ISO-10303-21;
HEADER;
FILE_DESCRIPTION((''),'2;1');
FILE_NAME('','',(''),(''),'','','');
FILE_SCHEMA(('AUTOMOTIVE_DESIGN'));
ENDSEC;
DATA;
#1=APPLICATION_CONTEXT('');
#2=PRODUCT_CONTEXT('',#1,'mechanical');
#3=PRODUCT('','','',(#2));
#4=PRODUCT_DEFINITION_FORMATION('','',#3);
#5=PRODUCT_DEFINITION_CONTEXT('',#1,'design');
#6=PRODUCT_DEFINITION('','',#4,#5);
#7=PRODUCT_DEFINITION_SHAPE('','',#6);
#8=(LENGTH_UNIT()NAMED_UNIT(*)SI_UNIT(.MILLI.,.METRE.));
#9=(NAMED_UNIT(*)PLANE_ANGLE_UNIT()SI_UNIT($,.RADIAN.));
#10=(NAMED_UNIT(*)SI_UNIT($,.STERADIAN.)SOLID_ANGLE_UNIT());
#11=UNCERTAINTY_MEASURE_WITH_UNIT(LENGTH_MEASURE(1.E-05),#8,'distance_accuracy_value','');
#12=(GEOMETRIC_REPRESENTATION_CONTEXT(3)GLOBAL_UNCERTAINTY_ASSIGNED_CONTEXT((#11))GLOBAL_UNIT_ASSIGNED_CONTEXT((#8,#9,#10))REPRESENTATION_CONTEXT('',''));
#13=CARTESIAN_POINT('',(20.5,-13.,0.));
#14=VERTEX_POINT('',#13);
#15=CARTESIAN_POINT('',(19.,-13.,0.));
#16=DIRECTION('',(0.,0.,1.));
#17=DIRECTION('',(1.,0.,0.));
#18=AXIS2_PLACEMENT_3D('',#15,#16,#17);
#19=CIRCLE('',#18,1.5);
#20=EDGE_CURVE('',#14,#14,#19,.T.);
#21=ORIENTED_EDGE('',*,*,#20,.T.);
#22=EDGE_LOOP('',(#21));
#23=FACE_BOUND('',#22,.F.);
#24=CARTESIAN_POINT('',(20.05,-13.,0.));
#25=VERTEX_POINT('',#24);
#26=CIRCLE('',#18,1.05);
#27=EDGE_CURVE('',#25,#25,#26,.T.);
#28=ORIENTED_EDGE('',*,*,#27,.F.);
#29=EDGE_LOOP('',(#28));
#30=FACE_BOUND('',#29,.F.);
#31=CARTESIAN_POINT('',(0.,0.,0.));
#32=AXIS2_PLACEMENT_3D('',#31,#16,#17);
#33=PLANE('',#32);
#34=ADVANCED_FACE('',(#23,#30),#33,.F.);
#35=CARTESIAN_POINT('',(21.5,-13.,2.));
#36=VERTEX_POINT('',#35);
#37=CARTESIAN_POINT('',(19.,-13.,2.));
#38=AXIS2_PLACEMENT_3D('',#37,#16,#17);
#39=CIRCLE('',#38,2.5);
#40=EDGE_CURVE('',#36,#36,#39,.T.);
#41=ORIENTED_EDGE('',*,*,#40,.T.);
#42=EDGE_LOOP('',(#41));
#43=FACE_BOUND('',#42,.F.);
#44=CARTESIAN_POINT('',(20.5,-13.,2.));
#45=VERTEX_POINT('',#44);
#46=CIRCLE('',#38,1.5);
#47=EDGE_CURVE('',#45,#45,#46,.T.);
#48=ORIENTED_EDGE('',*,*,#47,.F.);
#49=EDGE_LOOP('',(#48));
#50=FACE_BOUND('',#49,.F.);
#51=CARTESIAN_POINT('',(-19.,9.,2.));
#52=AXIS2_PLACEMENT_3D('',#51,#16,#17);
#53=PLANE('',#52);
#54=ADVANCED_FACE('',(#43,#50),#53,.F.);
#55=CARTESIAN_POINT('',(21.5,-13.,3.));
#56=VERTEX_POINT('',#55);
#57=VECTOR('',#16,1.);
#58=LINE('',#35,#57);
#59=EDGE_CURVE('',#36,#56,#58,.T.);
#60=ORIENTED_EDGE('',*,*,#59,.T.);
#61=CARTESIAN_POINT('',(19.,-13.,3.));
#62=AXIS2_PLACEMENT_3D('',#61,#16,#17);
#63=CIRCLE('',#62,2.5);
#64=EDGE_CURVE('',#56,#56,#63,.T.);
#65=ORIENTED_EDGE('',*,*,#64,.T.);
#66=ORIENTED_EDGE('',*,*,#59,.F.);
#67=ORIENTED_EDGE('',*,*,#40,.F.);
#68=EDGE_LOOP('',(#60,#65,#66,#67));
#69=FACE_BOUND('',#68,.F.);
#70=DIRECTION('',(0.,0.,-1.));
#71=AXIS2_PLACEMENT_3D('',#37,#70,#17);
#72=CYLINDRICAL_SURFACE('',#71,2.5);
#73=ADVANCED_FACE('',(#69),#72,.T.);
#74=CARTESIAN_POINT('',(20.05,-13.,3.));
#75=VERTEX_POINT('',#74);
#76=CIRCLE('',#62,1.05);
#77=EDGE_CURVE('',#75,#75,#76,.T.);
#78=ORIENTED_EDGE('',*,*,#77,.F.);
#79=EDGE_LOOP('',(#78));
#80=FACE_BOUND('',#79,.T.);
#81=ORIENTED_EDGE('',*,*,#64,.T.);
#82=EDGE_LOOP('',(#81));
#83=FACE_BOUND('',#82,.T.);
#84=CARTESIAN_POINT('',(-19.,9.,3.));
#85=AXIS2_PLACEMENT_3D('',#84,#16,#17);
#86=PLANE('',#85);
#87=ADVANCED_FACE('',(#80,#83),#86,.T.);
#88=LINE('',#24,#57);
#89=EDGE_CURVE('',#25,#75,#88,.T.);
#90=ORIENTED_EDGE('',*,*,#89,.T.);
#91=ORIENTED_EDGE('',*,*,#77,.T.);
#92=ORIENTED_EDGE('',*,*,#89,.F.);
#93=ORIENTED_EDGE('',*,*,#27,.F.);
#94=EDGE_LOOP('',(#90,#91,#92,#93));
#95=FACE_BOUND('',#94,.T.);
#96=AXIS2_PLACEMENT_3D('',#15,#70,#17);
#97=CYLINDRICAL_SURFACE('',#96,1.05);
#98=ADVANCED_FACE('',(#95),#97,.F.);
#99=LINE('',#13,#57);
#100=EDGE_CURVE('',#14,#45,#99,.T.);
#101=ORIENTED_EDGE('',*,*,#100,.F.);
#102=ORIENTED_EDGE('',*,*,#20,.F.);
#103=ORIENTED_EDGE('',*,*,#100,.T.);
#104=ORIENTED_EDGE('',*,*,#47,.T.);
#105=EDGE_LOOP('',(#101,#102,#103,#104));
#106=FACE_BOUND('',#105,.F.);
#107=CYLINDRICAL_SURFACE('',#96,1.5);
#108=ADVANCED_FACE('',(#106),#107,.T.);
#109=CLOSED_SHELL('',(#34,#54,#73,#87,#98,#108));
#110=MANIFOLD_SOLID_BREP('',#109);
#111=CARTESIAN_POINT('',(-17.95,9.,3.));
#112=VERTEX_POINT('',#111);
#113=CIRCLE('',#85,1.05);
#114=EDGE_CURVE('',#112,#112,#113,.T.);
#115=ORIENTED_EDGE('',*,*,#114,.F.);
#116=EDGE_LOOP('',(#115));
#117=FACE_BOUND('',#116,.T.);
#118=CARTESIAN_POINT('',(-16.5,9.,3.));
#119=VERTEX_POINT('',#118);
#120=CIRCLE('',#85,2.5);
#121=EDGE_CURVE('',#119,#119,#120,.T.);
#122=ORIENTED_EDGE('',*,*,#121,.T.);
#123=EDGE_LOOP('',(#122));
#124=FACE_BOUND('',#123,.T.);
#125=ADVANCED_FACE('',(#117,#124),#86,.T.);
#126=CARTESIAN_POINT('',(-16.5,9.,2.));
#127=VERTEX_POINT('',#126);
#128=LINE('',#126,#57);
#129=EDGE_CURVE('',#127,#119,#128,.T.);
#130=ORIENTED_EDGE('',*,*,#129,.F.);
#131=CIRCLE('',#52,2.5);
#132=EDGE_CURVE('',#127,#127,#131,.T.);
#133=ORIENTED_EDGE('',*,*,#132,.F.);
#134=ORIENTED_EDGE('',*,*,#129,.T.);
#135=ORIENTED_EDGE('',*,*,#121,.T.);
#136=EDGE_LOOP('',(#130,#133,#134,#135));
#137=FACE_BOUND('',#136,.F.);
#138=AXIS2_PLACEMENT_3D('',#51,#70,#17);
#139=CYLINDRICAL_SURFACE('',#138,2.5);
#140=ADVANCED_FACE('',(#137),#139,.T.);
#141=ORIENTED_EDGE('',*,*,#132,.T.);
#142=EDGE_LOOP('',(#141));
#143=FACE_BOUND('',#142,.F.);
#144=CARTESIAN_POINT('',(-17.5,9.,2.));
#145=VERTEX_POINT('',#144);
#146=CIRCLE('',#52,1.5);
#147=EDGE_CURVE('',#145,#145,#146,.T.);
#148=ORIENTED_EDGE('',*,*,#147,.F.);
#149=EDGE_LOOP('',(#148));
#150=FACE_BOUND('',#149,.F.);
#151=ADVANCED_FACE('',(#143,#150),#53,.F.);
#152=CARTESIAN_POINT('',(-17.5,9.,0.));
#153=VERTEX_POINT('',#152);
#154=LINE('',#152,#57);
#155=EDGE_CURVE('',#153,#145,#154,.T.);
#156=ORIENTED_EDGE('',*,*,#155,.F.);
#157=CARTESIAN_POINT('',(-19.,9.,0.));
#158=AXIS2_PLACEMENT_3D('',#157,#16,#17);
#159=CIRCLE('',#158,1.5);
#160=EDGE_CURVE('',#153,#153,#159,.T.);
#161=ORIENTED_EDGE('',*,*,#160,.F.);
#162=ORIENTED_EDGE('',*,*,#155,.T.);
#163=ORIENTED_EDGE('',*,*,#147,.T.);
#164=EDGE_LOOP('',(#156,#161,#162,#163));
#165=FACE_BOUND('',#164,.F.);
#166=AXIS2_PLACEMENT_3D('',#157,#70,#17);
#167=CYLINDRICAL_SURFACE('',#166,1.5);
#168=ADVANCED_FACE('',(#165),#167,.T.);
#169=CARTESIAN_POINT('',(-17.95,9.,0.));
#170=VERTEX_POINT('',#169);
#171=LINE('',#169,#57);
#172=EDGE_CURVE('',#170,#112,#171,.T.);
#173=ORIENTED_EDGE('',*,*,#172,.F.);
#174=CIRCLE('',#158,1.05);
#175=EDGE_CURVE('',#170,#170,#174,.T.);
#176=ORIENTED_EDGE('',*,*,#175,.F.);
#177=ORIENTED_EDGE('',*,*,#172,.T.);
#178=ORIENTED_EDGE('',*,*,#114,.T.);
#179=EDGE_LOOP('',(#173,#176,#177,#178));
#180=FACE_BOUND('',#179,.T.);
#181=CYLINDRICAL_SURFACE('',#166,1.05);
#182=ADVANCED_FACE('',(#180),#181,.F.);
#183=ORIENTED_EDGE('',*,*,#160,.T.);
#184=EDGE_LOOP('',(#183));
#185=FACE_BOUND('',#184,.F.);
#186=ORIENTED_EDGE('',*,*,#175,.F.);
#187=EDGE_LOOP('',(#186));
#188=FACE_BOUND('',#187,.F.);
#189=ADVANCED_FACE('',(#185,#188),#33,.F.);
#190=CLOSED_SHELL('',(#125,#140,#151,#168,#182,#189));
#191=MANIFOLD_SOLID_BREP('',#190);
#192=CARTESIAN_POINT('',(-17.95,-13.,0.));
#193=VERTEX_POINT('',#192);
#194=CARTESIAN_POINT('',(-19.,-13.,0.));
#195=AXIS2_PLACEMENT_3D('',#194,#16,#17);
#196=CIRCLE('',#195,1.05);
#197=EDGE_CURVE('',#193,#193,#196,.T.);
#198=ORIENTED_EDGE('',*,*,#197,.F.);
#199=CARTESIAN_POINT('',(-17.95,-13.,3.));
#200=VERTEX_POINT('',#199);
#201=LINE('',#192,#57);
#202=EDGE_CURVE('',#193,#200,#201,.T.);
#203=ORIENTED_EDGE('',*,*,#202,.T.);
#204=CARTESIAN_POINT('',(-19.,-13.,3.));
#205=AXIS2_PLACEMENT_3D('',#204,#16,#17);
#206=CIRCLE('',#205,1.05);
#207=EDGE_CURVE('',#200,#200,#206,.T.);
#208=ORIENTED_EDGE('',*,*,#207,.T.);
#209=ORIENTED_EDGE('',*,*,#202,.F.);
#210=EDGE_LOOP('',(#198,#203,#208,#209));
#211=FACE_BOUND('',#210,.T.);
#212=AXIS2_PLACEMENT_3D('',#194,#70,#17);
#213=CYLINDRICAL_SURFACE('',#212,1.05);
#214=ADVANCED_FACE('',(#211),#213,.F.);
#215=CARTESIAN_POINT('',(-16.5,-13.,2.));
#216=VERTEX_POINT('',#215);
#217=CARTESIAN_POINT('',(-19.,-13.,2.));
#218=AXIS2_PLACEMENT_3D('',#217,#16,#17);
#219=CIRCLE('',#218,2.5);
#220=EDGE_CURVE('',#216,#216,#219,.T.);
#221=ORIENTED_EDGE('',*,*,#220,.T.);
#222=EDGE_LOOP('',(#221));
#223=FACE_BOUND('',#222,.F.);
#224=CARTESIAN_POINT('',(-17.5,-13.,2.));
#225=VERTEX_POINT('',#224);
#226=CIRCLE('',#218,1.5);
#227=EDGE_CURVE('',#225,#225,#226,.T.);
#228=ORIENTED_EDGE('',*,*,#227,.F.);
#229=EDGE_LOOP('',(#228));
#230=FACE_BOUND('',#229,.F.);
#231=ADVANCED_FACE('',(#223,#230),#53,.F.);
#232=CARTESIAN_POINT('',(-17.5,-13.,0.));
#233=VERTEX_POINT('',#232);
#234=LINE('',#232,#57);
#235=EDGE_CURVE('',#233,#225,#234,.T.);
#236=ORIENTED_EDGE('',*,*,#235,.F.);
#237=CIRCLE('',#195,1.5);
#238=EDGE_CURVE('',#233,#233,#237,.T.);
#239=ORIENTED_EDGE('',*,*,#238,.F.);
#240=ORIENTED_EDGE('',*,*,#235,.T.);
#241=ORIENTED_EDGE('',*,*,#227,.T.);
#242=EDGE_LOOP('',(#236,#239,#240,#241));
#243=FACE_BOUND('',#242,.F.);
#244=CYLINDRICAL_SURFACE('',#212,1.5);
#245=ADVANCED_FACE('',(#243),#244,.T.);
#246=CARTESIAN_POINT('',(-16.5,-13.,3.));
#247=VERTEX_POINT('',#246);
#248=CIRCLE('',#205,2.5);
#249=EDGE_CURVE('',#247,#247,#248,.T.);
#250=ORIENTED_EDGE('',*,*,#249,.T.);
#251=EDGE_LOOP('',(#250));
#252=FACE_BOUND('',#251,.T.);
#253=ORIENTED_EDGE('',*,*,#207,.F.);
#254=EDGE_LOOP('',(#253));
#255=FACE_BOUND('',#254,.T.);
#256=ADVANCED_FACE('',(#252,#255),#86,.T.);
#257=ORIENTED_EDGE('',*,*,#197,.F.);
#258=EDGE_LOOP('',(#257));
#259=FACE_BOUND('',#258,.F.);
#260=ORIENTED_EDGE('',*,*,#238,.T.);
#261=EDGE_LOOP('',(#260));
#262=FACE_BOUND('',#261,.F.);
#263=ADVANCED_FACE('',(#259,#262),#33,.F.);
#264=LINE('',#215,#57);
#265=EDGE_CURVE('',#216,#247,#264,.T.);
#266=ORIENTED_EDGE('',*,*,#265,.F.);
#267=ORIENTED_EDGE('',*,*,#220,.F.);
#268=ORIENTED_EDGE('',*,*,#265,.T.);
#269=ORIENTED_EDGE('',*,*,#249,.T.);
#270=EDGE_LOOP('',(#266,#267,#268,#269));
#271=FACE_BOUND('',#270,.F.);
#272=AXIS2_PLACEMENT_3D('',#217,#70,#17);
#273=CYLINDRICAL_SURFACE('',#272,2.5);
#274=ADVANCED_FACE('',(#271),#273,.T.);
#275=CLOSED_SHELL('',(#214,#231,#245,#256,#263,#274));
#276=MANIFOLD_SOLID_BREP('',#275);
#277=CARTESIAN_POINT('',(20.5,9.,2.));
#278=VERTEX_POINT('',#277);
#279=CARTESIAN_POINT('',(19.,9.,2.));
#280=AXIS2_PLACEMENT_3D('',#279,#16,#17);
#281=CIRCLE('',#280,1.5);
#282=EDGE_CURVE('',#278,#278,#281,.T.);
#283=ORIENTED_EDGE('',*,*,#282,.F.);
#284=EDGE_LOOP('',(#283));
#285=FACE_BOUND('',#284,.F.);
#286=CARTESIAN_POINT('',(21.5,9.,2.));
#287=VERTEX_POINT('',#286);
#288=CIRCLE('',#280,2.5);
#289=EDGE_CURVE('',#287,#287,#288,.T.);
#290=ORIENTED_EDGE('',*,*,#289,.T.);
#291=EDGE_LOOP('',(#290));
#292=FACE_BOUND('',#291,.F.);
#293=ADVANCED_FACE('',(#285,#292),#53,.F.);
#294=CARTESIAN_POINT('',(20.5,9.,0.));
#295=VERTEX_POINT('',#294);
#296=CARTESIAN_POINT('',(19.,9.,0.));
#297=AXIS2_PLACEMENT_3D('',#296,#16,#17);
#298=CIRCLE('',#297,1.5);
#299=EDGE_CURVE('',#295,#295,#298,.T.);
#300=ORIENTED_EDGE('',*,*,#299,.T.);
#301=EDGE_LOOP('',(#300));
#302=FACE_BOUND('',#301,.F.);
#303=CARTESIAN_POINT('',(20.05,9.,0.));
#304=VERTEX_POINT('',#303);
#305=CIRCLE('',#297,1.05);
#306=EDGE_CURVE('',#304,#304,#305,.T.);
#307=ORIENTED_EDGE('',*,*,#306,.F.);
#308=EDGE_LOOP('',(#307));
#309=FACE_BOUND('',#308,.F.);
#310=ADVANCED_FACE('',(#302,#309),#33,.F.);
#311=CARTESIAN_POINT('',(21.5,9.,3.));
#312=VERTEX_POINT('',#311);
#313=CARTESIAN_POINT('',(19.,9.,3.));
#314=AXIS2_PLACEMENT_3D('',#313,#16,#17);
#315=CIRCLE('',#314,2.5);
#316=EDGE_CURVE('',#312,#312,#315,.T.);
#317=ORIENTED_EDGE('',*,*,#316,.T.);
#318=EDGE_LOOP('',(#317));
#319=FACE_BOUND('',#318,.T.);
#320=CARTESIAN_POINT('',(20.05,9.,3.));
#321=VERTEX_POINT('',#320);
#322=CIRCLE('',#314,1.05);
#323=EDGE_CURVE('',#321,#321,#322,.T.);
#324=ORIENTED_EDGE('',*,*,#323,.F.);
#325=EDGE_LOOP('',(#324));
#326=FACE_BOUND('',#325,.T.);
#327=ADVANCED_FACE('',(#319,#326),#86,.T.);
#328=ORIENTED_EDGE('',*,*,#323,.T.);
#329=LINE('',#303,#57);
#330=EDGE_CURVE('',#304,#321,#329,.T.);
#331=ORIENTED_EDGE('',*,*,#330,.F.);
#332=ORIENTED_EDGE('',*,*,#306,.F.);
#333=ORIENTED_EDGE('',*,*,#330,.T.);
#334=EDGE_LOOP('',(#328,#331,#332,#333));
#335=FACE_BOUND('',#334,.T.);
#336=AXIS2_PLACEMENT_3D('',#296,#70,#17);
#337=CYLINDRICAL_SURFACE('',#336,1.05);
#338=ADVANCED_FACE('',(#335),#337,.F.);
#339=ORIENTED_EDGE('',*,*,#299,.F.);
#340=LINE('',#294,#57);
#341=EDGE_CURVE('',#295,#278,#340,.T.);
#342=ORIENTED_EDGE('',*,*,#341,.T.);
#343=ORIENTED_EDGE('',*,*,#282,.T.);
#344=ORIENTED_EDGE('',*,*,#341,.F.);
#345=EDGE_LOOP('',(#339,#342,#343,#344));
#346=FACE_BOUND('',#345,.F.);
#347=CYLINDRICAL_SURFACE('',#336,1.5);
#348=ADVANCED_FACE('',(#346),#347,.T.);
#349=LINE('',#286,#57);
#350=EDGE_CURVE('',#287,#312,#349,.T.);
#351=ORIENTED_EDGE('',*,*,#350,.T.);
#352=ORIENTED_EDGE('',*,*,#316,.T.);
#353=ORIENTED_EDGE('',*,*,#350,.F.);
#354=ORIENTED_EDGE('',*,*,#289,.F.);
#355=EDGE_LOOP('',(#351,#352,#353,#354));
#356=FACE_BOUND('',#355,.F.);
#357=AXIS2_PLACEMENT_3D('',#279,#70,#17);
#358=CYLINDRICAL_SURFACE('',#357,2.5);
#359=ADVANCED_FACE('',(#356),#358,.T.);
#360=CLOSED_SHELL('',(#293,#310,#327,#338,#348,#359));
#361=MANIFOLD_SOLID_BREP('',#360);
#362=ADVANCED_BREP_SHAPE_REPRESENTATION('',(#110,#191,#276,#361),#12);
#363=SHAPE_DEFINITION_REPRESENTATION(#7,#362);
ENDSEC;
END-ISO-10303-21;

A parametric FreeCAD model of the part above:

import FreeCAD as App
import Part
import Sketcher
Q = App.Units.Quantity

doc = App.newDocument("Part")
body = doc.addObject("PartDesign::Body", "Body")
body.AllowCompound = True

# Sketch on XY plane
sketch1 = body.newObject("Sketcher::SketchObject", "Sketch")
sketch1.AttachmentSupport = (doc.getObject("XY_Plane"), [""])
sketch1.MapMode = "FlatFace"
sketch1.addGeometry([
    Part.Circle(App.Vector(-19, 9, 0), App.Vector(0, 0, 1), 1.5),  # 0
    Part.Circle(App.Vector(-19, 9, 0), App.Vector(0, 0, 1), 1.1),  # 1
    Part.Circle(App.Vector(-19, -13, 0), App.Vector(0, 0, 1), 1.5),  # 2
    Part.Circle(App.Vector(-19, -13, 0), App.Vector(0, 0, 1), 1.1),  # 3
    Part.Circle(App.Vector(19, -13, 0), App.Vector(0, 0, 1), 1.5),  # 4
    Part.Circle(App.Vector(19, -13, 0), App.Vector(0, 0, 1), 1.1),  # 5
    Part.Circle(App.Vector(19, 9, 0), App.Vector(0, 0, 1), 1.5),  # 6
    Part.Circle(App.Vector(19, 9, 0), App.Vector(0, 0, 1), 1.1),  # 7
], False)
sketch1.addConstraint([
    Sketcher.Constraint("Coincident", 1, 3, 0, 3),
    Sketcher.Constraint("Coincident", 3, 3, 2, 3),
    Sketcher.Constraint("Coincident", 5, 3, 4, 3),
    Sketcher.Constraint("Coincident", 7, 3, 6, 3),
    Sketcher.Constraint("Equal", 0, 2),
    Sketcher.Constraint("Equal", 1, 3),
    Sketcher.Constraint("Equal", 2, 4),
    Sketcher.Constraint("Equal", 3, 5),
    Sketcher.Constraint("Equal", 4, 6),
    Sketcher.Constraint("Equal", 5, 7),
    Sketcher.Constraint("Symmetric", 2, 3, 4, 3, -2),
    Sketcher.Constraint("Symmetric", 0, 3, 6, 3, -2),
    Sketcher.Constraint("Vertical", 1, 3, 2, 3),
    Sketcher.Constraint("Diameter", 0, Q("3 mm")),
    Sketcher.Constraint("Diameter", 1, Q("2.1 mm")),
    Sketcher.Constraint("DistanceX", 0, 3, -1, 1, Q("19 mm")),
    Sketcher.Constraint("DistanceY", -1, 1, 0, 3, Q("9 mm")),
    Sketcher.Constraint("DistanceY", 2, 3, -1, 1, Q("13 mm")),
])
pad1 = body.newObject("PartDesign::Pad", "Pad")
pad1.Profile = sketch1
pad1.Length = 2

# Sketch on XY plane
sketch2 = body.newObject("Sketcher::SketchObject", "Sketch001")
sketch2.AttachmentSupport = (doc.getObject("XY_Plane"), [""])
sketch2.MapMode = "FlatFace"
sketch2.AttachmentOffset = App.Placement(App.Vector(0, 0, 2), App.Rotation())
sketch2.addGeometry([
    Part.Circle(App.Vector(-19, 9, 0), App.Vector(0, 0, 1), 2.5),  # 0
    Part.Circle(App.Vector(-19, 9, 0), App.Vector(0, 0, 1), 1.1),  # 1
    Part.Circle(App.Vector(-19, -13, 0), App.Vector(0, 0, 1), 2.5),  # 2
    Part.Circle(App.Vector(-19, -13, 0), App.Vector(0, 0, 1), 1.1),  # 3
    Part.Circle(App.Vector(19, -13, 0), App.Vector(0, 0, 1), 2.5),  # 4
    Part.Circle(App.Vector(19, -13, 0), App.Vector(0, 0, 1), 1.1),  # 5
    Part.Circle(App.Vector(19, 9, 0), App.Vector(0, 0, 1), 2.5),  # 6
    Part.Circle(App.Vector(19, 9, 0), App.Vector(0, 0, 1), 1.1),  # 7
], False)
sketch2.addConstraint([
    Sketcher.Constraint("Coincident", 1, 3, 0, 3),
    Sketcher.Constraint("Coincident", 3, 3, 2, 3),
    Sketcher.Constraint("Coincident", 5, 3, 4, 3),
    Sketcher.Constraint("Coincident", 7, 3, 6, 3),
    Sketcher.Constraint("Equal", 0, 2),
    Sketcher.Constraint("Equal", 1, 3),
    Sketcher.Constraint("Equal", 2, 4),
    Sketcher.Constraint("Equal", 3, 5),
    Sketcher.Constraint("Equal", 4, 6),
    Sketcher.Constraint("Equal", 5, 7),
    Sketcher.Constraint("Symmetric", 2, 3, 4, 3, -2),
    Sketcher.Constraint("Symmetric", 0, 3, 6, 3, -2),
    Sketcher.Constraint("Vertical", 1, 3, 2, 3),
    Sketcher.Constraint("Diameter", 0, Q("5 mm")),
    Sketcher.Constraint("Diameter", 1, Q("2.1 mm")),
    Sketcher.Constraint("DistanceX", 0, 3, -1, 1, Q("19 mm")),
    Sketcher.Constraint("DistanceY", -1, 1, 0, 3, Q("9 mm")),
    Sketcher.Constraint("DistanceY", 2, 3, -1, 1, Q("13 mm")),
])
pad2 = body.newObject("PartDesign::Pad", "Pad001")
pad2.Profile = sketch2
pad2.Length = 1

doc.recompute()
